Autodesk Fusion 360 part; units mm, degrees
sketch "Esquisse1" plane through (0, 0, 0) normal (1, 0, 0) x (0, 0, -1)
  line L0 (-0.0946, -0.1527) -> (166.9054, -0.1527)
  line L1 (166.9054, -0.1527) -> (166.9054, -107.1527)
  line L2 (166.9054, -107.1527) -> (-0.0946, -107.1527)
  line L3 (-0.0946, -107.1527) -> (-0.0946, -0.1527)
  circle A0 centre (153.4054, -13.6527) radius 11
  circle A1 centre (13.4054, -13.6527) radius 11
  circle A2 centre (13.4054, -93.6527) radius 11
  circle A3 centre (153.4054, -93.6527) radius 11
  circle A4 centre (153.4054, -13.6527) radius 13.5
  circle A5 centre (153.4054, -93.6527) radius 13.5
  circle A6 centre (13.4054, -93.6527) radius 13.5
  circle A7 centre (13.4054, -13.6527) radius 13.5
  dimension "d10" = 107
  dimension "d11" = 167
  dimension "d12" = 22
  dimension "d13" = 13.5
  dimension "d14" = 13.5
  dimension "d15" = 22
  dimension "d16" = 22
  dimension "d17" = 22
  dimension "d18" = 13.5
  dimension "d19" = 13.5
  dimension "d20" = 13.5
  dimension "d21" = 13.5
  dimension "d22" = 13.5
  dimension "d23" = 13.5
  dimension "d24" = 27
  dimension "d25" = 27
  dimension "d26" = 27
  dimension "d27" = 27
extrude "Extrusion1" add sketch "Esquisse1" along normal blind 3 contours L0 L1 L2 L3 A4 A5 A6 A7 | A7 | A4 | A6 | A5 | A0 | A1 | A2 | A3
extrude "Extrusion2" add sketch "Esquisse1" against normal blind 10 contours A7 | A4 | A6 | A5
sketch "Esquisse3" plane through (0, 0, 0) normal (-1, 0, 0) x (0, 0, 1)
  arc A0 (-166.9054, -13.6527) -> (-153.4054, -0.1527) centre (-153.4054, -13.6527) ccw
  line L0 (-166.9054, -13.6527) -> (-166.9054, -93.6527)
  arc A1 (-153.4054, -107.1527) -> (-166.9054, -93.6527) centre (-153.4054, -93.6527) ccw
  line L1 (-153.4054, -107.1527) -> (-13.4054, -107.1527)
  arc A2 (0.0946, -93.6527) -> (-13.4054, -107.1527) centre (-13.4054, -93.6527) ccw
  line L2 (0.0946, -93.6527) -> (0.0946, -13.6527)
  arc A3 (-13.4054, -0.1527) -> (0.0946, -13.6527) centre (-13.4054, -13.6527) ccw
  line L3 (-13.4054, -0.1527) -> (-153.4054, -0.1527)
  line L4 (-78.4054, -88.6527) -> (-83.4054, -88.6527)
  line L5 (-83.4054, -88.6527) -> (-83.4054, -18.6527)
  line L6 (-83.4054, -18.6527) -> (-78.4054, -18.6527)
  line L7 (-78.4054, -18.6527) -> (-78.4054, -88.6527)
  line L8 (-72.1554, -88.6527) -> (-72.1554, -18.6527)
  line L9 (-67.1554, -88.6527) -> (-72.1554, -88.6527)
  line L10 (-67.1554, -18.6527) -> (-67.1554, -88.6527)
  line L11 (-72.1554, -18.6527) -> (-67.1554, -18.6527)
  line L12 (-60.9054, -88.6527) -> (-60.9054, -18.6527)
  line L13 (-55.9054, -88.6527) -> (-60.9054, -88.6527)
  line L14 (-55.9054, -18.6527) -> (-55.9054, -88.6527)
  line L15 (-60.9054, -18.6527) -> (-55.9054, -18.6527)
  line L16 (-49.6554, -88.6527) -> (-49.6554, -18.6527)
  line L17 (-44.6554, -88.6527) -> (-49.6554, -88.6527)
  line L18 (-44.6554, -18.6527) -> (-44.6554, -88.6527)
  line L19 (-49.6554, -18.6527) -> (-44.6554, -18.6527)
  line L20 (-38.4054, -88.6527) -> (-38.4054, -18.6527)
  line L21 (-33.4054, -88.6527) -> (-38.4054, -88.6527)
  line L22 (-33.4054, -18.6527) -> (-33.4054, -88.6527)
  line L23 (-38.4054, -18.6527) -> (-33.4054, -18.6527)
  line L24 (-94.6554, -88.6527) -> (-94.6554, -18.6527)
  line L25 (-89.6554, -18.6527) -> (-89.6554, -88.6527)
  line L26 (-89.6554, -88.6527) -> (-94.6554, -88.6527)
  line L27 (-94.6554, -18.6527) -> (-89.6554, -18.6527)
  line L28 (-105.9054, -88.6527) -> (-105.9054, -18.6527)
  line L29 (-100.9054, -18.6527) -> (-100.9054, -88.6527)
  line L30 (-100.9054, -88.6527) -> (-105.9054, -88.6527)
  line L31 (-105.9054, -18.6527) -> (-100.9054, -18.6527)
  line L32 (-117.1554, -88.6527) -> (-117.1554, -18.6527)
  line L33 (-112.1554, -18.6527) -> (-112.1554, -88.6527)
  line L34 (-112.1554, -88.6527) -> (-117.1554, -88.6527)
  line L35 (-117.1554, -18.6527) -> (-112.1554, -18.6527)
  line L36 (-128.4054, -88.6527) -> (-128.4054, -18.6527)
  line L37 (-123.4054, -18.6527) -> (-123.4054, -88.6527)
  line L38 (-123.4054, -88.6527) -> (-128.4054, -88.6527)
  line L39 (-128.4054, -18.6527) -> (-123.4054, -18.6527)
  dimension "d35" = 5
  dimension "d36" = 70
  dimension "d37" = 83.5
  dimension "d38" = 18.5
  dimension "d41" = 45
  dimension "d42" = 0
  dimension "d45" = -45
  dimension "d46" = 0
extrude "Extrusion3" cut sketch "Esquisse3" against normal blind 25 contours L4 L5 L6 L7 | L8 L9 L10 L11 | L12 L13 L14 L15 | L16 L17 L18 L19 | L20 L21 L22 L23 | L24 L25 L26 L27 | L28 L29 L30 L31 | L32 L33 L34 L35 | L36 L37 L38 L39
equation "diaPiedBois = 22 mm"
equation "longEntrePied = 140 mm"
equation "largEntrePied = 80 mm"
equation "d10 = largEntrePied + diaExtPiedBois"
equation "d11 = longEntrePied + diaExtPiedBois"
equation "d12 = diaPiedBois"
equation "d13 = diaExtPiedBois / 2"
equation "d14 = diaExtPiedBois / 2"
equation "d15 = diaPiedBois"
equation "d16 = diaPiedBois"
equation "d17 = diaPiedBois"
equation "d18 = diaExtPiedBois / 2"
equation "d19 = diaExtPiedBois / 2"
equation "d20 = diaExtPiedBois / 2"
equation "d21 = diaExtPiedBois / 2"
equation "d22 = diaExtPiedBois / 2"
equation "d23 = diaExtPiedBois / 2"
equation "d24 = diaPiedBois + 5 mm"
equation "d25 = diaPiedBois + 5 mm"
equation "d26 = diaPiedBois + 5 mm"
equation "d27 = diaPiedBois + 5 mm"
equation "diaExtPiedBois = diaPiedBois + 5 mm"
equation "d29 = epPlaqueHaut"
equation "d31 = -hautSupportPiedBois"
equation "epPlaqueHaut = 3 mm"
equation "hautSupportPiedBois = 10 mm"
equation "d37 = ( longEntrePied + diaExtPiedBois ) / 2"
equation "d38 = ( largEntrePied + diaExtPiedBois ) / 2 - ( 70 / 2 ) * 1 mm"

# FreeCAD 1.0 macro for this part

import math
import FreeCAD as App
import Part
import Sketcher
from FreeCAD import Vector


def add_polygon(sketch, points):
    """Adds a closed chain of lines whose ends are joined by coincident constraints."""
    first, n = sketch.GeometryCount, len(points)
    for a, b in zip(points, points[1:] + points[:1]):
        sketch.addGeometry(Part.LineSegment(App.Vector(*a, 0), App.Vector(*b, 0)), False)
    for i in range(n):
        sketch.addConstraint(Sketcher.Constraint("Coincident", first + i, 2, first + (i + 1) % n, 1))

doc = App.newDocument("Part")
body = doc.addObject("PartDesign::Body", "Body")

sketch1 = body.newObject("Sketcher::SketchObject", "Sketch")
sketch1.AttachmentSupport = (doc.getObject("YZ_Plane"), [""])
sketch1.MapMode = "FlatFace"
sketch1.addGeometry([
    Part.LineSegment(Vector(0, -153, 0), Vector(0, -13, 0)),
    Part.ArcOfCircle(Part.Circle(Vector(-14, -13, 0), Vector(0, 0, 1), 14), math.radians(0), math.radians(90)),
    Part.LineSegment(Vector(-14, 0, 0), Vector(-94, 0, 0)),
    Part.ArcOfCircle(Part.Circle(Vector(-94, -13, 0), Vector(0, 0, 1), 14), math.radians(90), math.radians(180)),
    Part.LineSegment(Vector(-107, -13, 0), Vector(-107, -153, 0)),
    Part.ArcOfCircle(Part.Circle(Vector(-94, -153, 0), Vector(0, 0, 1), 14), math.radians(180), math.radians(270)),
    Part.LineSegment(Vector(-94, -167, 0), Vector(-14, -167, 0)),
    Part.ArcOfCircle(Part.Circle(Vector(-14, -153, 0), Vector(0, 0, 1), 14), math.radians(-90), math.radians(0)),
], False)
sketch1.addConstraint([
    Sketcher.Constraint("Tangent", 0, 2, 1, 1),
    Sketcher.Constraint("Tangent", 1, 2, 2, 1),
    Sketcher.Constraint("Tangent", 2, 2, 3, 1),
    Sketcher.Constraint("Tangent", 3, 2, 4, 1),
    Sketcher.Constraint("Tangent", 4, 2, 5, 1),
    Sketcher.Constraint("Tangent", 5, 2, 6, 1),
    Sketcher.Constraint("Tangent", 6, 2, 7, 1),
    Sketcher.Constraint("Tangent", 7, 2, 0, 1),
    Sketcher.Constraint("Vertical", 0),
    Sketcher.Constraint("Horizontal", 2),
    Sketcher.Constraint("Vertical", 4),
    Sketcher.Constraint("Horizontal", 6),
    Sketcher.Constraint("Equal", 1, 3),
    Sketcher.Constraint("Equal", 3, 5),
    Sketcher.Constraint("Equal", 5, 7),
    Sketcher.Constraint("Radius", 1, 13.5),
    Sketcher.Constraint("DistanceX", 3, 2, 0, 2, 107.0),
    Sketcher.Constraint("DistanceY", 0, 1, 0, 2, 140.0),
    Sketcher.Constraint("DistanceX", 1, 3, -1, 1, 13.6527),
    Sketcher.Constraint("DistanceY", 1, 3, -1, 1, 13.4054),
])
pad1 = body.newObject("PartDesign::Pad", "Pad")
pad1.Profile = sketch1
pad1.Length = 3

sketch2 = body.newObject("Sketcher::SketchObject", "Sketch001")
sketch2.AttachmentSupport = (doc.getObject("YZ_Plane"), [""])
sketch2.MapMode = "FlatFace"
sketch2.addGeometry([
    Part.Circle(Vector(-14, -13, 0), Vector(0, 0, 1), 14),
    Part.Circle(Vector(-14, -13, 0), Vector(0, 0, 1), 11),
    Part.Circle(Vector(-14, -153, 0), Vector(0, 0, 1), 14),
    Part.Circle(Vector(-14, -153, 0), Vector(0, 0, 1), 11),
    Part.Circle(Vector(-94, -13, 0), Vector(0, 0, 1), 14),
    Part.Circle(Vector(-94, -13, 0), Vector(0, 0, 1), 11),
    Part.Circle(Vector(-94, -153, 0), Vector(0, 0, 1), 14),
    Part.Circle(Vector(-94, -153, 0), Vector(0, 0, 1), 11),
], False)
sketch2.addConstraint([
    Sketcher.Constraint("Coincident", 1, 3, 0, 3),
    Sketcher.Constraint("Coincident", 3, 3, 2, 3),
    Sketcher.Constraint("Coincident", 5, 3, 4, 3),
    Sketcher.Constraint("Coincident", 7, 3, 6, 3),
    Sketcher.Constraint("Equal", 0, 2),
    Sketcher.Constraint("Equal", 1, 3),
    Sketcher.Constraint("Equal", 2, 4),
    Sketcher.Constraint("Equal", 3, 5),
    Sketcher.Constraint("Equal", 4, 6),
    Sketcher.Constraint("Equal", 5, 7),
    Sketcher.Constraint("Horizontal", 1, 3, 4, 3),
    Sketcher.Constraint("Horizontal", 3, 3, 6, 3),
    Sketcher.Constraint("Vertical", 1, 3, 2, 3),
    Sketcher.Constraint("Vertical", 5, 3, 6, 3),
    Sketcher.Constraint("Diameter", 0, 27.0),
    Sketcher.Constraint("Diameter", 1, 22.0),
    Sketcher.Constraint("DistanceY", 2, 3, 0, 3, 140.0),
    Sketcher.Constraint("DistanceX", 4, 3, 0, 3, 80.0),
    Sketcher.Constraint("DistanceX", 0, 3, -1, 1, 13.6527),
    Sketcher.Constraint("DistanceY", 0, 3, -1, 1, 13.4054),
])
pad2 = body.newObject("PartDesign::Pad", "Pad001")
pad2.Profile = sketch2
pad2.Length = 10
pad2.Reversed = True

sketch3 = body.newObject("Sketcher::SketchObject", "Sketch002")
sketch3.AttachmentSupport = (doc.getObject("YZ_Plane"), [""])
sketch3.MapMode = "FlatFace"
add_polygon(sketch3, [(-88.7, -83.4), (-88.7, -78.4), (-18.7, -78.4), (-18.7, -83.4)])
add_polygon(sketch3, [(-18.7, -72.2), (-88.7, -72.2), (-88.7, -67.2), (-18.7, -67.2)])
add_polygon(sketch3, [(-18.7, -60.9), (-88.7, -60.9), (-88.7, -55.9), (-18.7, -55.9)])
add_polygon(sketch3, [(-18.7, -49.7), (-88.7, -49.7), (-88.7, -44.7), (-18.7, -44.7)])
add_polygon(sketch3, [(-18.7, -38.4), (-88.7, -38.4), (-88.7, -33.4), (-18.7, -33.4)])
add_polygon(sketch3, [(-18.7, -94.7), (-88.7, -94.7), (-88.7, -89.7), (-18.7, -89.7)])
add_polygon(sketch3, [(-18.7, -105.9), (-88.7, -105.9), (-88.7, -100.9), (-18.7, -100.9)])
add_polygon(sketch3, [(-18.7, -117.2), (-88.7, -117.2), (-88.7, -112.2), (-18.7, -112.2)])
add_polygon(sketch3, [(-18.7, -128.4), (-88.7, -128.4), (-88.7, -123.4), (-18.7, -123.4)])
sketch3.addConstraint([
    Sketcher.Constraint("Vertical", 0),
    Sketcher.Constraint("Horizontal", 1),
    Sketcher.Constraint("Vertical", 2),
    Sketcher.Constraint("Horizontal", 3),
    Sketcher.Constraint("Horizontal", 4),
    Sketcher.Constraint("Vertical", 5),
    Sketcher.Constraint("Horizontal", 6),
    Sketcher.Constraint("Vertical", 7),
    Sketcher.Constraint("Horizontal", 8),
    Sketcher.Constraint("Vertical", 9),
    Sketcher.Constraint("Horizontal", 10),
    Sketcher.Constraint("Vertical", 11),
    Sketcher.Constraint("Horizontal", 12),
    Sketcher.Constraint("Vertical", 13),
    Sketcher.Constraint("Horizontal", 14),
    Sketcher.Constraint("Vertical", 15),
    Sketcher.Constraint("Horizontal", 16),
    Sketcher.Constraint("Vertical", 17),
    Sketcher.Constraint("Horizontal", 18),
    Sketcher.Constraint("Vertical", 19),
    Sketcher.Constraint("Horizontal", 20),
    Sketcher.Constraint("Vertical", 21),
    Sketcher.Constraint("Horizontal", 22),
    Sketcher.Constraint("Vertical", 23),
    Sketcher.Constraint("Horizontal", 24),
    Sketcher.Constraint("Vertical", 25),
    Sketcher.Constraint("Horizontal", 26),
    Sketcher.Constraint("Vertical", 27),
    Sketcher.Constraint("Horizontal", 28),
    Sketcher.Constraint("Vertical", 29),
    Sketcher.Constraint("Horizontal", 30),
    Sketcher.Constraint("Vertical", 31),
    Sketcher.Constraint("Horizontal", 32),
    Sketcher.Constraint("Vertical", 33),
    Sketcher.Constraint("Horizontal", 34),
    Sketcher.Constraint("Vertical", 35),
    Sketcher.Constraint("Vertical", 3, 2, 4, 2),
    Sketcher.Constraint("Vertical", 2, 2, 6, 2),
    Sketcher.Constraint("Vertical", 5, 2, 8, 2),
    Sketcher.Constraint("Vertical", 7, 2, 10, 2),
    Sketcher.Constraint("Vertical", 9, 2, 12, 2),
    Sketcher.Constraint("Vertical", 11, 2, 14, 2),
    Sketcher.Constraint("Vertical", 13, 2, 16, 2),
    Sketcher.Constraint("Vertical", 15, 2, 18, 2),
    Sketcher.Constraint("Vertical", 17, 2, 20, 2),
    Sketcher.Constraint("Vertical", 19, 2, 22, 2),
    Sketcher.Constraint("Vertical", 21, 2, 24, 2),
    Sketcher.Constraint("Vertical", 23, 2, 26, 2),
    Sketcher.Constraint("Vertical", 25, 2, 28, 2),
    Sketcher.Constraint("Vertical", 27, 2, 30, 2),
    Sketcher.Constraint("Vertical", 29, 2, 32, 2),
    Sketcher.Constraint("Vertical", 31, 2, 34, 2),
    Sketcher.Constraint("Equal", 2, 5),
    Sketcher.Constraint("Equal", 7, 9),
    Sketcher.Constraint("Equal", 11, 13),
    Sketcher.Constraint("Equal", 15, 17),
    Sketcher.Constraint("Equal", 19, 21),
    Sketcher.Constraint("Equal", 23, 25),
    Sketcher.Constraint("Equal", 27, 29),
    Sketcher.Constraint("Equal", 31, 33),
    Sketcher.Constraint("DistanceX", 1, 1, 1, 2, 70.0),
    Sketcher.Constraint("DistanceY", 0, 1, 0, 2, 5.0),
    Sketcher.Constraint("DistanceY", 0, 2, 8, 2, 17.5),
    Sketcher.Constraint("DistanceY", 5, 2, 12, 2, 17.5),
    Sketcher.Constraint("DistanceY", 9, 2, 16, 2, 17.5),
    Sketcher.Constraint("DistanceY", 20, 2, 4, 2, 22.5),
    Sketcher.Constraint("DistanceY", 24, 2, 3, 2, 22.5),
    Sketcher.Constraint("DistanceY", 28, 2, 20, 2, 22.5),
    Sketcher.Constraint("DistanceY", 32, 2, 24, 2, 22.5),
    Sketcher.Constraint("DistanceY", 0, 2, 4, 2, 6.25),
    Sketcher.Constraint("DistanceX", 0, 2, -1, 1, 88.6527),
    Sketcher.Constraint("DistanceY", 0, 2, -1, 1, 78.4054),
])
pocket1 = body.newObject("PartDesign::Pocket", "Pocket")
pocket1.Profile = sketch3
pocket1.Length = 25
pocket1.Reversed = True

doc.recompute()
